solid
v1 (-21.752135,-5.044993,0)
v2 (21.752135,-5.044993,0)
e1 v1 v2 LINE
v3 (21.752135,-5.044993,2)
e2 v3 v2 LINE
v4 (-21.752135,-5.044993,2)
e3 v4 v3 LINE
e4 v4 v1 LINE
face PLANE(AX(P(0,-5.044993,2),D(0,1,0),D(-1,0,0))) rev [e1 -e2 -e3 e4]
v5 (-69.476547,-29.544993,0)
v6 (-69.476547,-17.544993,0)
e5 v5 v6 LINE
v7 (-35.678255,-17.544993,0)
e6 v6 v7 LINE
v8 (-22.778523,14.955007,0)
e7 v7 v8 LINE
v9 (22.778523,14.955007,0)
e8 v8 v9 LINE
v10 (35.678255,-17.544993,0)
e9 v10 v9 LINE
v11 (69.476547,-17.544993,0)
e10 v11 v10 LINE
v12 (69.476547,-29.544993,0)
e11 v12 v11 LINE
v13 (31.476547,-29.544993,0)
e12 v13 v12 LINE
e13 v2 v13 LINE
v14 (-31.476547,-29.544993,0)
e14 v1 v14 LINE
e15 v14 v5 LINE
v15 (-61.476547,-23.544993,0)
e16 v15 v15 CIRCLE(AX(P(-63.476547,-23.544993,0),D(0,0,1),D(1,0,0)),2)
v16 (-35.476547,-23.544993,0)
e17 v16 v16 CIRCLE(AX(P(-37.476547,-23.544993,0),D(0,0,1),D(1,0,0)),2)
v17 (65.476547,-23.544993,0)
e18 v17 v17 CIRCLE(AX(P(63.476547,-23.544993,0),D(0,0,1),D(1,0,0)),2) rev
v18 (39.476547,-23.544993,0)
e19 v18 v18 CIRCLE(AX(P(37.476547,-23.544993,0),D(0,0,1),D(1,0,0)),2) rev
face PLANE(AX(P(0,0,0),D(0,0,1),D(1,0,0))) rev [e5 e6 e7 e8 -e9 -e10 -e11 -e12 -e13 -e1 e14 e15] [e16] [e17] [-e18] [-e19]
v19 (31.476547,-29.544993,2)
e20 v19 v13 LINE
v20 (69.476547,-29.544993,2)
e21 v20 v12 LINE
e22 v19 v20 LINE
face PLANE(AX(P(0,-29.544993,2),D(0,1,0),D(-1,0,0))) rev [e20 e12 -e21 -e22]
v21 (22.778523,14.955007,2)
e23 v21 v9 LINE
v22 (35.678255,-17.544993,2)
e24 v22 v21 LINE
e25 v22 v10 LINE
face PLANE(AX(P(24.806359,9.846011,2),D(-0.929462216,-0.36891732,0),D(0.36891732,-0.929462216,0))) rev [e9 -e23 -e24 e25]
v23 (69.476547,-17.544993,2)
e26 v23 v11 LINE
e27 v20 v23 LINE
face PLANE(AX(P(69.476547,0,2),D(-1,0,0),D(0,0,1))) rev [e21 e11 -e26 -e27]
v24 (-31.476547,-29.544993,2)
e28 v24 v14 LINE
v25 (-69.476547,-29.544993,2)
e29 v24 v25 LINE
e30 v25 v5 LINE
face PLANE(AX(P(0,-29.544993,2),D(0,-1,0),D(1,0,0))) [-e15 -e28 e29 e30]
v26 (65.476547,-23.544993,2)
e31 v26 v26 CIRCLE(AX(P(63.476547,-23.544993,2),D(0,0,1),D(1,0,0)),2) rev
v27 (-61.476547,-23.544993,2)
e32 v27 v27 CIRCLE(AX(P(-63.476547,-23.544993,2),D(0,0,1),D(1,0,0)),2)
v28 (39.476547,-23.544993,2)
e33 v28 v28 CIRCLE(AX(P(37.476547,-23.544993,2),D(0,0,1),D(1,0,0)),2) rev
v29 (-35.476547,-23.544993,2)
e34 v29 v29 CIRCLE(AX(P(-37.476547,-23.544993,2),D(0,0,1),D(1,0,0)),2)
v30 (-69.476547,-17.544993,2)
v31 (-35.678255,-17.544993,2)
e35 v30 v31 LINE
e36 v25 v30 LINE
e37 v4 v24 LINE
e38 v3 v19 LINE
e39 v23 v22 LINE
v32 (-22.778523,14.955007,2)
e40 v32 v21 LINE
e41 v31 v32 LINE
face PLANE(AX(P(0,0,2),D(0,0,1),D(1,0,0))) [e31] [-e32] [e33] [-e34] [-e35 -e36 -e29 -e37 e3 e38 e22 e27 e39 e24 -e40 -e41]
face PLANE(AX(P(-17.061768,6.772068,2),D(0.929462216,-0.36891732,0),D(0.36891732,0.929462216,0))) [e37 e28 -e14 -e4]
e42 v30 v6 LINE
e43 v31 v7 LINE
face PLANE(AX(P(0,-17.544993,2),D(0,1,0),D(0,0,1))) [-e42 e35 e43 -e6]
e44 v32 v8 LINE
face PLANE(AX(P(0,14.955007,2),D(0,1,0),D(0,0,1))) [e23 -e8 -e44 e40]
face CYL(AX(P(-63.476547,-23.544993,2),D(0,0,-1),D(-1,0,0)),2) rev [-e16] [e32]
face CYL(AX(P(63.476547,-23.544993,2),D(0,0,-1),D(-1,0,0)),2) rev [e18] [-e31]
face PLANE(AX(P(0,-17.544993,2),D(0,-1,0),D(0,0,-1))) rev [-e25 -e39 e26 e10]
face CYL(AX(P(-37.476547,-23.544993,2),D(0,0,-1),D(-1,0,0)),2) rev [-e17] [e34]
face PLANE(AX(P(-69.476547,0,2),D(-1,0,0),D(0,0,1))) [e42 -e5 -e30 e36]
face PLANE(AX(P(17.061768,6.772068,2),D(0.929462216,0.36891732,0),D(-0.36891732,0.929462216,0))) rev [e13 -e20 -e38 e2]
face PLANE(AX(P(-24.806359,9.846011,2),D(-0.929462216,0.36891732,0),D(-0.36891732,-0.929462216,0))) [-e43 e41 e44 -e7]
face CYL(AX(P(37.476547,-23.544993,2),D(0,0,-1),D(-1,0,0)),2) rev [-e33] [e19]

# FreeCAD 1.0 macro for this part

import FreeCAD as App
import Part
import Sketcher

doc = App.newDocument("Part")
body = doc.addObject("PartDesign::Body", "Body")

# Sketch on XY plane
sketch1 = body.newObject("Sketcher::SketchObject", "Sketch")
sketch1.AttachmentSupport = (doc.getObject("XY_Plane"), [""])
sketch1.MapMode = "FlatFace"
sketch1.addGeometry([
    Part.LineSegment(App.Vector(21.8, -5, 0), App.Vector(31.5, -29.5, 0)),  # 0
    Part.LineSegment(App.Vector(31.5, -29.5, 0), App.Vector(69.5, -29.5, 0)),  # 1
    Part.LineSegment(App.Vector(69.5, -29.5, 0), App.Vector(69.5, -17.5, 0)),  # 2
    Part.LineSegment(App.Vector(69.5, -17.5, 0), App.Vector(35.7, -17.5, 0)),  # 3
    Part.LineSegment(App.Vector(35.7, -17.5, 0), App.Vector(22.8, 15, 0)),  # 4
    Part.LineSegment(App.Vector(22.8, 15, 0), App.Vector(-22.8, 15, 0)),  # 5
    Part.LineSegment(App.Vector(-22.8, 15, 0), App.Vector(-35.7, -17.5, 0)),  # 6
    Part.LineSegment(App.Vector(-35.7, -17.5, 0), App.Vector(-69.5, -17.5, 0)),  # 7
    Part.LineSegment(App.Vector(-69.5, -17.5, 0), App.Vector(-69.5, -29.5, 0)),  # 8
    Part.LineSegment(App.Vector(-69.5, -29.5, 0), App.Vector(-31.5, -29.5, 0)),  # 9
    Part.LineSegment(App.Vector(-31.5, -29.5, 0), App.Vector(-21.8, -5, 0)),  # 10
    Part.LineSegment(App.Vector(-21.8, -5, 0), App.Vector(21.8, -5, 0)),  # 11
    Part.Circle(App.Vector(-63.5, -23.5, 0), App.Vector(0, 0, 1), 2),  # 12
    Part.Circle(App.Vector(-37.5, -23.5, 0), App.Vector(0, 0, 1), 2),  # 13
    Part.Circle(App.Vector(37.5, -23.5, 0), App.Vector(0, 0, 1), 2),  # 14
    Part.Circle(App.Vector(63.5, -23.5, 0), App.Vector(0, 0, 1), 2),  # 15
], False)
sketch1.addConstraint([
    Sketcher.Constraint("Coincident", 0, 2, 1, 1),
    Sketcher.Constraint("Coincident", 1, 2, 2, 1),
    Sketcher.Constraint("Coincident", 2, 2, 3, 1),
    Sketcher.Constraint("Coincident", 3, 2, 4, 1),
    Sketcher.Constraint("Coincident", 4, 2, 5, 1),
    Sketcher.Constraint("Coincident", 5, 2, 6, 1),
    Sketcher.Constraint("Coincident", 6, 2, 7, 1),
    Sketcher.Constraint("Coincident", 7, 2, 8, 1),
    Sketcher.Constraint("Coincident", 8, 2, 9, 1),
    Sketcher.Constraint("Coincident", 9, 2, 10, 1),
    Sketcher.Constraint("Coincident", 10, 2, 11, 1),
    Sketcher.Constraint("Coincident", 11, 2, 0, 1),
    Sketcher.Constraint("Horizontal", 1),
    Sketcher.Constraint("Vertical", 2),
    Sketcher.Constraint("Horizontal", 3),
    Sketcher.Constraint("Horizontal", 5),
    Sketcher.Constraint("Horizontal", 7),
    Sketcher.Constraint("Vertical", 8),
    Sketcher.Constraint("Horizontal", 9),
    Sketcher.Constraint("Horizontal", 11),
    Sketcher.Constraint("Equal", 12, 13),
    Sketcher.Constraint("Equal", 13, 14),
    Sketcher.Constraint("Equal", 14, 15),
    Sketcher.Constraint("Symmetric", 13, 3, 14, 3, -2),
    Sketcher.Constraint("Symmetric", 12, 3, 15, 3, -2),
    Sketcher.Constraint("Symmetric", 3, 2, 6, 2, -2),
    Sketcher.Constraint("Symmetric", 1, 2, 8, 2, -2),
    Sketcher.Constraint("Parallel", 0, 4),
    Sketcher.Constraint("Parallel", 6, 10),
    Sketcher.Constraint("Horizontal", 12, 3, 13, 3),
    Sketcher.Constraint("Equal", 1, 9),
    Sketcher.Constraint("Equal", 4, 6),
    Sketcher.Constraint("Diameter", 12, 4.0),
    Sketcher.Constraint("DistanceX", 1, 1, 1, 2, 38.0),
    Sketcher.Constraint("DistanceY", 2, 1, 2, 2, 12.0),
    Sketcher.Constraint("DistanceX", 12, 3, 13, 3, 26.0),
    Sketcher.Constraint("DistanceX", 0, 2, 14, 3, 6.0),
    Sketcher.Constraint("DistanceY", 0, 2, 14, 3, 6.0),
    Sketcher.Constraint("DistanceY", 10, 2, 5, 2, 20.0),
    Sketcher.Constraint("DistanceY", 3, 2, 4, 2, 32.5),
    Sketcher.Constraint("DistanceX", 11, 1, 11, 2, 43.504269),
    Sketcher.Constraint("Distance", 0, 26.359329),
    Sketcher.Constraint("DistanceX", 3, 2, 3, 1, 33.798293),
    Sketcher.Constraint("DistanceY", 12, 3, -1, 1, 23.544993),
])
pad1 = body.newObject("PartDesign::Pad", "Pad")
pad1.Profile = sketch1
pad1.Length = 2

doc.recompute()
